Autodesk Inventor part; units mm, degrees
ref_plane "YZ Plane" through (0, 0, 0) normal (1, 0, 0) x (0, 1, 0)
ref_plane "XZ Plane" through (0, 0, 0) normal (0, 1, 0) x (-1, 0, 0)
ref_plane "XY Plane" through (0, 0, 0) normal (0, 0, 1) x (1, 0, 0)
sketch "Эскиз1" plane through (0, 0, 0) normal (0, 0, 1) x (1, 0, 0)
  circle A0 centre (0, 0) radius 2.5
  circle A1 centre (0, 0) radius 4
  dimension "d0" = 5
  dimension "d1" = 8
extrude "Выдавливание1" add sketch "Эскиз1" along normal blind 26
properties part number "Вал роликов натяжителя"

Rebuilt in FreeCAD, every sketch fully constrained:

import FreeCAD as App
import Part
import Sketcher
from FreeCAD import Vector

doc = App.newDocument("Part")
body = doc.addObject("PartDesign::Body", "Body")

# Sketch on XY plane
sketch1 = body.newObject("Sketcher::SketchObject", "Sketch")
sketch1.AttachmentSupport = (doc.getObject("XY_Plane"), [""])
sketch1.MapMode = "FlatFace"
sketch1.addGeometry([
    Part.Circle(Vector(0, 0, 0), Vector(0, 0, 1), 4),
    Part.Circle(Vector(0, 0, 0), Vector(0, 0, 1), 2.5),
], False)
sketch1.addConstraint([
    Sketcher.Constraint("Coincident", 0, 3, -1, 1),
    Sketcher.Constraint("Coincident", 1, 3, -1, 1),
    Sketcher.Constraint("Diameter", 0, 8.0),
    Sketcher.Constraint("Diameter", 1, 5.0),
])
pad1 = body.newObject("PartDesign::Pad", "Pad")
pad1.Profile = sketch1
pad1.Length = 26

doc.recompute()
